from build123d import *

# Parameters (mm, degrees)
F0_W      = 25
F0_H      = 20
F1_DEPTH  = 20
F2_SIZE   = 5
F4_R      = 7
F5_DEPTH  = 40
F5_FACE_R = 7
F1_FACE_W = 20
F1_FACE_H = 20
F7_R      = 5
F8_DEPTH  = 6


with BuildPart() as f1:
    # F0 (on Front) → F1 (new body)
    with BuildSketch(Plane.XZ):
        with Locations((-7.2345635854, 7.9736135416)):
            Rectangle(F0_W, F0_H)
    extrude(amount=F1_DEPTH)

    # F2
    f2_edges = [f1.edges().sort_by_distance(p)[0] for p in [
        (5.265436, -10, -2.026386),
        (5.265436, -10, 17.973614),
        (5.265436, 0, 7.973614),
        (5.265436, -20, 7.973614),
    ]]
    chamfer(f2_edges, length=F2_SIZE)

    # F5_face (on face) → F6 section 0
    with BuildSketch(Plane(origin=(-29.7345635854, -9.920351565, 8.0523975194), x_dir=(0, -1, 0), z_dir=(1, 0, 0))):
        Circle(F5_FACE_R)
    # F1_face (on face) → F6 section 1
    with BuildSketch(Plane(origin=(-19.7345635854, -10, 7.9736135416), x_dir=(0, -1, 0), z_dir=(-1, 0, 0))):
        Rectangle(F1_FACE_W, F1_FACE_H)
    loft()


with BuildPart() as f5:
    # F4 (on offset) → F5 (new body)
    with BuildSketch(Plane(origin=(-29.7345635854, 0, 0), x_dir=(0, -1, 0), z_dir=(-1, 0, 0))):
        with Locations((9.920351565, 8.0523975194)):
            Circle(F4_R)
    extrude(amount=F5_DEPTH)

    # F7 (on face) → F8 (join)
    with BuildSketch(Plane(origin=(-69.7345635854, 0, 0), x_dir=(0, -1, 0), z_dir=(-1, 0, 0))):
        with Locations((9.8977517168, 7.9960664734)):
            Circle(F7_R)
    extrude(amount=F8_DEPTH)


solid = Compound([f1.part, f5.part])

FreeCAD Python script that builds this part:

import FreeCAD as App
import Part
import Sketcher

V = App.Vector


def edges_at(feature, points):
    """Names of the edges that pass closest to the given points."""
    edges = feature.Shape.Edges
    near = lambda p: min(range(len(edges)), key=lambda i: edges[i].distToShape(Part.Vertex(*p))[0])
    return sorted({f"Edge{near(p) + 1}" for p in points})


def add_polygon(sketch, points):
    """Adds a closed chain of lines whose ends are joined by coincident constraints."""
    first, n = sketch.GeometryCount, len(points)
    for a, b in zip(points, points[1:] + points[:1]):
        sketch.addGeometry(Part.LineSegment(App.Vector(*a, 0), App.Vector(*b, 0)), False)
    for i in range(n):
        sketch.addConstraint(Sketcher.Constraint("Coincident", first + i, 2, first + (i + 1) % n, 1))

doc = App.newDocument("Part")
params = doc.addObject("Spreadsheet::Sheet", "Params")
for row, (alias, value) in enumerate([
    ("sketch1_width", "25 mm"),
    ("sketch1_height", "20 mm"),
    ("pad1_length", "20 mm"),
    ("chamfer_size", "5 mm"),
    ("sketch2_diameter", "14 mm"),
    ("sketch3_width", "20 mm"),
    ("sketch4_diameter", "14 mm"),
    ("pad2_length", "40 mm"),
    ("sketch5_diameter", "10 mm"),
    ("pad3_length", "6 mm"),
], start=1):
    params.set(f"A{row}", alias)
    params.set(f"B{row}", "=" + value)
    params.setAlias(f"B{row}", alias)

body = doc.addObject("PartDesign::Body", "Body")

# Sketch on XZ plane
sketch1 = doc.addObject("Sketcher::SketchObject", "Sketch")
body.addObject(sketch1)
sketch1.AttachmentSupport = (doc.XZ_Plane, [""])
sketch1.MapMode = "FlatFace"
add_polygon(sketch1, [(-20, 18), (-20, -2), (5, -2), (5, 18)])  # lines 0-3
sketch1.addConstraint([
    Sketcher.Constraint("Vertical", 0),
    Sketcher.Constraint("Horizontal", 1),
    Sketcher.Constraint("Vertical", 2),
    Sketcher.Constraint("Horizontal", 3),
    Sketcher.Constraint("DistanceX", 1, 1, 1, 2, 25.0),
    Sketcher.Constraint("DistanceY", 0, 2, 0, 1, 20.0),
    Sketcher.Constraint("DistanceX", 0, 2, -1, 1, 19.734564),
    Sketcher.Constraint("DistanceY", 0, 2, -1, 1, 2.026386),
])
sketch1.setExpression("Constraints[8]", "Params.sketch1_width")
sketch1.setExpression("Constraints[9]", "Params.sketch1_height")
pad1 = doc.addObject("PartDesign::Pad", "Pad")
body.addObject(pad1)
pad1.Profile = sketch1
pad1.setExpression("Length", "Params.pad1_length")
doc.recompute()

chamfer = doc.addObject("PartDesign::Chamfer", "Chamfer")
body.addObject(chamfer)
chamfer.Base = (pad1, edges_at(pad1, [
    (5.265, -10, -2.026),
    (5.265, -10, 17.974),
    (5.265, 0, 7.974),
    (5.265, -20, 7.974),
]))
chamfer.setExpression("Size", "Params.chamfer_size")

# Sketch on YZ plane
sketch2 = doc.addObject("Sketcher::SketchObject", "Sketch001")
body.addObject(sketch2)
sketch2.AttachmentSupport = (doc.YZ_Plane, [""])
sketch2.MapMode = "FlatFace"
sketch2.AttachmentOffset = App.Placement(V(0, 0, -29.734564), App.Rotation())
sketch2.addGeometry(Part.Circle(V(-10, 8, 0), V(0, 0, 1), 7), False)
sketch2.addConstraint([
    Sketcher.Constraint("Diameter", 0, 14.0),
    Sketcher.Constraint("DistanceX", 0, 3, -1, 1, 9.920352),
    Sketcher.Constraint("DistanceY", -1, 1, 0, 3, 8.052398),
])
sketch2.setExpression("Constraints[0]", "Params.sketch2_diameter")

# Sketch on YZ plane
sketch3 = doc.addObject("Sketcher::SketchObject", "Sketch002")
body.addObject(sketch3)
sketch3.AttachmentSupport = (doc.YZ_Plane, [""])
sketch3.MapMode = "FlatFace"
sketch3.AttachmentOffset = App.Placement(V(0, 0, -19.734564), App.Rotation())
add_polygon(sketch3, [(0, 18), (0, -2), (-20, -2), (-20, 18)])  # lines 0-3
sketch3.addConstraint([
    Sketcher.Constraint("Vertical", 0),
    Sketcher.Constraint("Horizontal", 1),
    Sketcher.Constraint("Vertical", 2),
    Sketcher.Constraint("Horizontal", 3),
    Sketcher.Constraint("PointOnObject", 0, 2, -2),
    Sketcher.Constraint("Equal", 3, 0),
    Sketcher.Constraint("DistanceX", 1, 2, 1, 1, 20.0),
    Sketcher.Constraint("DistanceY", 0, 2, -1, 1, 2.026386),
])
sketch3.setExpression("Constraints[10]", "Params.sketch3_width")

additiveloft = doc.addObject("PartDesign::AdditiveLoft", "AdditiveLoft")
body.addObject(additiveloft)
additiveloft.Profile = sketch2
additiveloft.Sections = [sketch3]
body2 = doc.addObject("PartDesign::Body", "Body001")

# Sketch on YZ plane
sketch4 = doc.addObject("Sketcher::SketchObject", "Sketch003")
body2.addObject(sketch4)
sketch4.AttachmentSupport = (doc.getObject("YZ_Plane001"), [""])
sketch4.MapMode = "FlatFace"
sketch4.AttachmentOffset = App.Placement(V(0, 0, -29.734564), App.Rotation())
sketch4.addGeometry(Part.Circle(V(-10, 8, 0), V(0, 0, 1), 7), False)
sketch4.addConstraint([
    Sketcher.Constraint("Diameter", 0, 14.0),
    Sketcher.Constraint("DistanceX", 0, 3, -1, 1, 9.920352),
    Sketcher.Constraint("DistanceY", -1, 1, 0, 3, 8.052398),
])
sketch4.setExpression("Constraints[0]", "Params.sketch4_diameter")
pad2 = doc.addObject("PartDesign::Pad", "Pad001")
body2.addObject(pad2)
pad2.Profile = sketch4
pad2.setExpression("Length", "Params.pad2_length")
pad2.Reversed = True

# Sketch on YZ plane
sketch5 = doc.addObject("Sketcher::SketchObject", "Sketch004")
body2.addObject(sketch5)
sketch5.AttachmentSupport = (doc.getObject("YZ_Plane001"), [""])
sketch5.MapMode = "FlatFace"
sketch5.AttachmentOffset = App.Placement(V(0, 0, -69.734564), App.Rotation())
sketch5.addGeometry(Part.Circle(V(-10, 8, 0), V(0, 0, 1), 5), False)
sketch5.addConstraint([
    Sketcher.Constraint("Diameter", 0, 10.0),
    Sketcher.Constraint("DistanceX", 0, 3, -1, 1, 9.897752),
    Sketcher.Constraint("DistanceY", -1, 1, 0, 3, 7.996066),
])
sketch5.setExpression("Constraints[0]", "Params.sketch5_diameter")
pad3 = doc.addObject("PartDesign::Pad", "Pad002")
body2.addObject(pad3)
pad3.Profile = sketch5
pad3.setExpression("Length", "Params.pad3_length")
pad3.Reversed = True

doc.recompute()
